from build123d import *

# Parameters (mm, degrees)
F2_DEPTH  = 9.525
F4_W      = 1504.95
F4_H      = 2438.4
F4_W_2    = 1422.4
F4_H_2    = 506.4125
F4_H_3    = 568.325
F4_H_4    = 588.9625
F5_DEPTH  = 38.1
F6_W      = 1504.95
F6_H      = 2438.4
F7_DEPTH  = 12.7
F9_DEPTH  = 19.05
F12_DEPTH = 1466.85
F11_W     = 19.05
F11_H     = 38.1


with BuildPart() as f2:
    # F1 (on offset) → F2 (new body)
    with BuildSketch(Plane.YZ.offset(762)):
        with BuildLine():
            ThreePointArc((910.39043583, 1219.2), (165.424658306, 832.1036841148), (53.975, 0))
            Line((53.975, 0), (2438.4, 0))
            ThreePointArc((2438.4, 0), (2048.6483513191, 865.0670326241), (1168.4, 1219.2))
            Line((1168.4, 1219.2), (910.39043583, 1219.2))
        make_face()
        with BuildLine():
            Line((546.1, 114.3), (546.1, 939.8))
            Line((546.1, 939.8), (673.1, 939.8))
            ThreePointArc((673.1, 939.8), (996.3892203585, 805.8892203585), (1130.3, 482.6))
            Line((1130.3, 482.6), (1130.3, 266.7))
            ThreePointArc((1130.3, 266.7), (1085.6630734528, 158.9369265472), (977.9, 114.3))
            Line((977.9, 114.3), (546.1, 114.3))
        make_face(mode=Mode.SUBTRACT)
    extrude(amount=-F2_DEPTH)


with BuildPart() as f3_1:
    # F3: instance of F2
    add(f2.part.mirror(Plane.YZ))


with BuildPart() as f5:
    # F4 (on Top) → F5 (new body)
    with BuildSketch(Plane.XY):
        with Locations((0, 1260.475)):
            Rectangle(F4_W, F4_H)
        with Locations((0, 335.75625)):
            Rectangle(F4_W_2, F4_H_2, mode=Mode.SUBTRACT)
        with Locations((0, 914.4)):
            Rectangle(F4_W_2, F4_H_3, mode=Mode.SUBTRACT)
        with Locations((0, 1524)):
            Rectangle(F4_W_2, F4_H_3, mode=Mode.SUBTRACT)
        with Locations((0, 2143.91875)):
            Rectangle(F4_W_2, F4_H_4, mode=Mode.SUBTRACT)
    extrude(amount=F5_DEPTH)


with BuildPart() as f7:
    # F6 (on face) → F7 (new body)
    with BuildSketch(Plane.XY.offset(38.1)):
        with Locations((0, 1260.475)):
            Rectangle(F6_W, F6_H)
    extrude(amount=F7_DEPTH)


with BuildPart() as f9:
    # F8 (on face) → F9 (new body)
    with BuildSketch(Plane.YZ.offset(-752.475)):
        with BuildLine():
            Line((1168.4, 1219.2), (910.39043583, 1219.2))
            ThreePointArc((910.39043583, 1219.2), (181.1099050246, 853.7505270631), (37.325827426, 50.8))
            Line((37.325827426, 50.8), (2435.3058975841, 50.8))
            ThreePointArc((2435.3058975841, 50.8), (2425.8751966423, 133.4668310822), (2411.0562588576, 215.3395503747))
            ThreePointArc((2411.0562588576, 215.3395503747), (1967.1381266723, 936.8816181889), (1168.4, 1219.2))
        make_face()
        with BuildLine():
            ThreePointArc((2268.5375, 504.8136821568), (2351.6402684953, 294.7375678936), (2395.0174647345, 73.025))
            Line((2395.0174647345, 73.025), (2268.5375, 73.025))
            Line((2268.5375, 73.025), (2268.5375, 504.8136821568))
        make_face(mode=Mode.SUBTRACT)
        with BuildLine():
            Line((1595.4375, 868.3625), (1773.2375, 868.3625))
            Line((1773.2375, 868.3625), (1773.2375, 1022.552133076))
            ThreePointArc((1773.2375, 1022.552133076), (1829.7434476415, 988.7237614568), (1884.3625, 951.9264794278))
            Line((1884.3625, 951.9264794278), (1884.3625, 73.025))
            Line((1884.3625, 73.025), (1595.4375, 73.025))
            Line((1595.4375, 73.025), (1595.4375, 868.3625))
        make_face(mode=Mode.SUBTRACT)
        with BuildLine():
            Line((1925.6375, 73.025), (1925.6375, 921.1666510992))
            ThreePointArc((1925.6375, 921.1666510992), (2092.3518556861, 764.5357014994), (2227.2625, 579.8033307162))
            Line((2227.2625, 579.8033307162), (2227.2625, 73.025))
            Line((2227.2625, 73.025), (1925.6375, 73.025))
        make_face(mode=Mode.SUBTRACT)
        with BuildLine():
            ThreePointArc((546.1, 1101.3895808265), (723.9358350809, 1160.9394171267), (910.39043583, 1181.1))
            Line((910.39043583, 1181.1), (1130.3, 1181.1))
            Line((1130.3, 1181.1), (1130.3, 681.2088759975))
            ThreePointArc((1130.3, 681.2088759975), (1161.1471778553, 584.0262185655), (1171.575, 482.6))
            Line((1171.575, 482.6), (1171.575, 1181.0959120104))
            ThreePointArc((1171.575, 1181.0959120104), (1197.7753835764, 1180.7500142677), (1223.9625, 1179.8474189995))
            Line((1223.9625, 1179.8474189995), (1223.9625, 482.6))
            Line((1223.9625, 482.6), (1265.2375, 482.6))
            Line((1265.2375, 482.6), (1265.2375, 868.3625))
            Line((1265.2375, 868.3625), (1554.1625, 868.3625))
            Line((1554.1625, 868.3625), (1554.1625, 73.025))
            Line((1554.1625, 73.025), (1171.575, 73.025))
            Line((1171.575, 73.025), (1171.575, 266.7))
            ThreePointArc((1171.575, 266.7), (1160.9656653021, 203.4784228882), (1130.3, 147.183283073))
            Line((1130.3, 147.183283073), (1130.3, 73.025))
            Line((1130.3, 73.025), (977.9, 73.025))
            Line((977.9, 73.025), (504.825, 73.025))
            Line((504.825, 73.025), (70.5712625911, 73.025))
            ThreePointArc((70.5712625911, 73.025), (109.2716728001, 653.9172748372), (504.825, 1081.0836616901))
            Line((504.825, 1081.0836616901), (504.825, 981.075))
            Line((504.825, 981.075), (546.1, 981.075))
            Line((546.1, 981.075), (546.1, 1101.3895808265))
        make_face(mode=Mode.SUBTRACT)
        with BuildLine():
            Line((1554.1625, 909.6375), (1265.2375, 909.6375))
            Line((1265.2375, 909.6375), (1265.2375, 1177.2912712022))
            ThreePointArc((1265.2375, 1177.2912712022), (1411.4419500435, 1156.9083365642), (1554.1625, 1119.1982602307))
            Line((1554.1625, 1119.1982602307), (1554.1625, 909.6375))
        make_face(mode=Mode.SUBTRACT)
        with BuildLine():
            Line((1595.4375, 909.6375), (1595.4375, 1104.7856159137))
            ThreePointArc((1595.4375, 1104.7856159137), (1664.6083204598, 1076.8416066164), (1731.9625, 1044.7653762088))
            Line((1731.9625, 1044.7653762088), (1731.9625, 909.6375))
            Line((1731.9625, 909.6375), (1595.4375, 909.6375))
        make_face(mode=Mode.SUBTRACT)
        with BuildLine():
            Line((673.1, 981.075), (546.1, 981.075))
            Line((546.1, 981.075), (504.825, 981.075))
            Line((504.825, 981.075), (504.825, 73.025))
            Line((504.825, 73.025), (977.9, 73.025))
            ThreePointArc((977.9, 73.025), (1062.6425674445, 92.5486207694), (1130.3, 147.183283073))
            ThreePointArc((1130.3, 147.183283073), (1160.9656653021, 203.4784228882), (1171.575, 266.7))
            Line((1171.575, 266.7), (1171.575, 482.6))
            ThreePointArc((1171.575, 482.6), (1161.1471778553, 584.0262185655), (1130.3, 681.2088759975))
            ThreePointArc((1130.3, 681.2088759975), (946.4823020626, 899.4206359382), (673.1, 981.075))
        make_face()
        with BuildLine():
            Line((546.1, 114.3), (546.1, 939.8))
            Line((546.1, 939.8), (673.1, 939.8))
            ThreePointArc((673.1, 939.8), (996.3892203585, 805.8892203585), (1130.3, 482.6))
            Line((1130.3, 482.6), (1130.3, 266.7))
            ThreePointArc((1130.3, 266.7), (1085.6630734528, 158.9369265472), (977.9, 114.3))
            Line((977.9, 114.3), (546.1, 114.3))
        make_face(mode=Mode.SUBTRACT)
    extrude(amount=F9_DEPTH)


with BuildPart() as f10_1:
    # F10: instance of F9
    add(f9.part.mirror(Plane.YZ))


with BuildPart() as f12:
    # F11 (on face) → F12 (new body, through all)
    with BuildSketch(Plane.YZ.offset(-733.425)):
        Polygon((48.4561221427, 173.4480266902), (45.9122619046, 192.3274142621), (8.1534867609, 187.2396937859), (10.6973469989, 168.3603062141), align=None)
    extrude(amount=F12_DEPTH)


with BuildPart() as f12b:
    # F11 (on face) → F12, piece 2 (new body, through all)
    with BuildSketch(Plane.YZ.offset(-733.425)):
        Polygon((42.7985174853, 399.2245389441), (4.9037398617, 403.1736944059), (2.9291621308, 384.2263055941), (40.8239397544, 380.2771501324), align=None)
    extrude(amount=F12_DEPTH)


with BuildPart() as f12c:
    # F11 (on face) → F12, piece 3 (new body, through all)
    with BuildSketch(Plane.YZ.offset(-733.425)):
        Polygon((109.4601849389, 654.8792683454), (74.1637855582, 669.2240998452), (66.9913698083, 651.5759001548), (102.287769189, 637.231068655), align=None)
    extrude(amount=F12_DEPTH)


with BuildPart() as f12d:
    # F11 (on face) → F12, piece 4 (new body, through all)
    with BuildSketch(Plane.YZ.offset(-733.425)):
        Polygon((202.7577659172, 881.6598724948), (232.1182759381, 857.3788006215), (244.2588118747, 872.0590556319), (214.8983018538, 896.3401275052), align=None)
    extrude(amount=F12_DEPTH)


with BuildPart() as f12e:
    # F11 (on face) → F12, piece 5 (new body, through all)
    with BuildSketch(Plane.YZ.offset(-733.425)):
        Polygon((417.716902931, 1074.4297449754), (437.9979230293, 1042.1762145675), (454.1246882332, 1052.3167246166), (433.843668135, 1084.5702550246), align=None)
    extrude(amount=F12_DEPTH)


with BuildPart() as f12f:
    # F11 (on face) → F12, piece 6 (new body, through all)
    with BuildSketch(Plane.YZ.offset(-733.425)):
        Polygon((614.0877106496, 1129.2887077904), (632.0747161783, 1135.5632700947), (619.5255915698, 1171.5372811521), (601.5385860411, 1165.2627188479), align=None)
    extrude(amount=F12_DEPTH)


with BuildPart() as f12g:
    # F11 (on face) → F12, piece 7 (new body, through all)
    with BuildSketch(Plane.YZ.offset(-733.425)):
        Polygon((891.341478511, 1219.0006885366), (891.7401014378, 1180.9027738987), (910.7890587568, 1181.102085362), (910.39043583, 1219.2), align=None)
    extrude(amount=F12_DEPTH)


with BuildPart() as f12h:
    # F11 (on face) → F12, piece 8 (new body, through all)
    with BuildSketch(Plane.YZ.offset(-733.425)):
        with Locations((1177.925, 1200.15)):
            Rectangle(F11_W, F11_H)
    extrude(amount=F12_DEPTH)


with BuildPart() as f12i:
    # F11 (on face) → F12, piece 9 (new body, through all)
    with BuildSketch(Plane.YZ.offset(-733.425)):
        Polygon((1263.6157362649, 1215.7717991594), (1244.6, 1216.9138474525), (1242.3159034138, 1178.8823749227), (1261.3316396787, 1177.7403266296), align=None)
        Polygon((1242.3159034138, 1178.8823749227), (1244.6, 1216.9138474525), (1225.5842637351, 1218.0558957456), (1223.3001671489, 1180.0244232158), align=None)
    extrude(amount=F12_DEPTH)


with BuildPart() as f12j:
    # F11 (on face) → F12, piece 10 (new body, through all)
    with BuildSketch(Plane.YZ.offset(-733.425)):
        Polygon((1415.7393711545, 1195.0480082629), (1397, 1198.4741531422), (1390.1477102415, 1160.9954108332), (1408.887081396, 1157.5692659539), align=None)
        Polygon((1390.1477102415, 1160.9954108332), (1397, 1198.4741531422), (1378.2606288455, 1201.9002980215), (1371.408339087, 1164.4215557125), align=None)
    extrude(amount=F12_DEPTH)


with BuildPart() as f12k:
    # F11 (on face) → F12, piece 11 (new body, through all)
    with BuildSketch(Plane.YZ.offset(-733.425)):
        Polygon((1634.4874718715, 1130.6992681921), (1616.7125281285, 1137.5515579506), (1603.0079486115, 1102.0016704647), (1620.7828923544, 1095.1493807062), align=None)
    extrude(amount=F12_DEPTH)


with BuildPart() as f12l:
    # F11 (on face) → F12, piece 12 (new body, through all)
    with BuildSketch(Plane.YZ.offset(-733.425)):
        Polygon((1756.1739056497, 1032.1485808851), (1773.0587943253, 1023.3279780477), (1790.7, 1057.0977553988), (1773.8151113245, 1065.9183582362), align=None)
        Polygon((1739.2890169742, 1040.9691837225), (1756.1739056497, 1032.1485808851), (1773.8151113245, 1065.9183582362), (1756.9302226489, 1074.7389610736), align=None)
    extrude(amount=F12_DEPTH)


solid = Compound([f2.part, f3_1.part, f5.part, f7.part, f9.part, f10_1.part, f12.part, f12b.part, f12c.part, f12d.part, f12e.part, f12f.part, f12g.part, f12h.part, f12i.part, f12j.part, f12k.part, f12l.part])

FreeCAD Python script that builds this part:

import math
import FreeCAD as App
import Part
import Sketcher
Q = App.Units.Quantity


def add_polygon(sketch, points):
    """Adds a closed chain of lines whose ends are joined by coincident constraints."""
    first, n = sketch.GeometryCount, len(points)
    for a, b in zip(points, points[1:] + points[:1]):
        sketch.addGeometry(Part.LineSegment(App.Vector(*a, 0), App.Vector(*b, 0)), False)
    for i in range(n):
        sketch.addConstraint(Sketcher.Constraint("Coincident", first + i, 2, first + (i + 1) % n, 1))

doc = App.newDocument("Part")
body = doc.addObject("PartDesign::Body", "Body")

# Sketch on YZ plane
sketch1 = body.newObject("Sketcher::SketchObject", "Sketch")
sketch1.AttachmentSupport = (doc.getObject("YZ_Plane"), [""])
sketch1.MapMode = "FlatFace"
sketch1.AttachmentOffset = App.Placement(App.Vector(0, 0, 30 * 25.4), App.Rotation())
sketch1.addGeometry(Part.ArcOfCircle(Part.Circle(App.Vector(910, 309, 0), App.Vector(0, 0, 1), 910), math.radians(90), math.radians(200)), False)
sketch1.addGeometry(Part.LineSegment(App.Vector(54, 0, 0), App.Vector(2438, 0, 0)), False)
sketch1.addGeometry(Part.ArcOfCircle(Part.Circle(App.Vector(1168, -52, 0), App.Vector(0, 0, 1), 1271), math.radians(2), math.radians(90)), False)
sketch1.addGeometry(Part.LineSegment(App.Vector(1168, 1219, 0), App.Vector(910, 1219, 0)), False)
sketch1.addGeometry(Part.LineSegment(App.Vector(978, 114, 0), App.Vector(546, 114, 0)), False)
sketch1.addGeometry(Part.LineSegment(App.Vector(546, 114, 0), App.Vector(546, 940, 0)), False)
sketch1.addGeometry(Part.LineSegment(App.Vector(546, 940, 0), App.Vector(673, 940, 0)), False)
sketch1.addGeometry(Part.ArcOfCircle(Part.Circle(App.Vector(673, 483, 0), App.Vector(0, 0, 1), 457), math.radians(0), math.radians(90)), False)
sketch1.addGeometry(Part.LineSegment(App.Vector(1130, 483, 0), App.Vector(1130, 267, 0)), False)
sketch1.addGeometry(Part.ArcOfCircle(Part.Circle(App.Vector(978, 267, 0), App.Vector(0, 0, 1), 152), math.radians(-90), math.radians(0)), False)
sketch1.addConstraint(Sketcher.Constraint("Coincident", 0, 2, 1, 1))
sketch1.addConstraint(Sketcher.Constraint("Coincident", 1, 2, 2, 1))
sketch1.addConstraint(Sketcher.Constraint("Tangent", 2, 2, 3, 1))
sketch1.addConstraint(Sketcher.Constraint("Coincident", 3, 2, 0, 1))
sketch1.addConstraint(Sketcher.Constraint("Coincident", 4, 2, 5, 1))
sketch1.addConstraint(Sketcher.Constraint("Coincident", 5, 2, 6, 1))
sketch1.addConstraint(Sketcher.Constraint("Tangent", 6, 2, 7, 2))
sketch1.addConstraint(Sketcher.Constraint("Tangent", 7, 1, 8, 1))
sketch1.addConstraint(Sketcher.Constraint("Tangent", 8, 2, 9, 2))
sketch1.addConstraint(Sketcher.Constraint("Tangent", 9, 1, 4, 1))
sketch1.addConstraint(Sketcher.Constraint("Horizontal", 1))
sketch1.addConstraint(Sketcher.Constraint("Horizontal", 3))
sketch1.addConstraint(Sketcher.Constraint("Horizontal", 4))
sketch1.addConstraint(Sketcher.Constraint("Vertical", 5))
sketch1.addConstraint(Sketcher.Constraint("Horizontal", 6))
sketch1.addConstraint(Sketcher.Constraint("Vertical", 8))
sketch1.addConstraint(Sketcher.Constraint("PointOnObject", 1, 2, -1))
sketch1.addConstraint(Sketcher.Constraint("Vertical", 0, 3, 3, 2))
sketch1.addConstraint(Sketcher.Constraint("Radius", 7, Q("18 in")))
sketch1.addConstraint(Sketcher.Constraint("Radius", 9, Q("6 in")))
sketch1.addConstraint(Sketcher.Constraint("DistanceX", 4, 2, 4, 1, Q("17 in")))
sketch1.addConstraint(Sketcher.Constraint("DistanceY", 5, 1, 5, 2, Q("32.5 in")))
sketch1.addConstraint(Sketcher.Constraint("DistanceX", -1, 1, 2, 3, Q("46 in")))
sketch1.addConstraint(Sketcher.Constraint("DistanceY", -1, 1, 7, 3, Q("19 in")))
sketch1.addConstraint(Sketcher.Constraint("DistanceX", -1, 1, 1, 2, Q("96 in")))
sketch1.addConstraint(Sketcher.Constraint("DistanceY", -1, 1, 2, 2, Q("48 in")))
sketch1.addConstraint(Sketcher.Constraint("DistanceX", -1, 1, 7, 3, Q("26.5 in")))
sketch1.addConstraint(Sketcher.Constraint("DistanceX", 1, 1, 1, 2, Q("93.875 in")))
sketch1.addConstraint(Sketcher.Constraint("Radius", 0, Q("910.390436 mm")))
pad1 = body.newObject("PartDesign::Pad", "Pad")
pad1.Profile = sketch1
pad1.Length = Q("0.375 in")
pad1.Reversed = True
body2 = doc.addObject("PartDesign::Body", "Body001")
doc.recompute()

mirroring = doc.addObject("Part::Mirroring", "Mirroring")
mirroring.Source = body
mirroring.Base = App.Vector(0, 0, 0)
mirroring.Normal = App.Vector(1, 0, 0)
body2.BaseFeature = mirroring
doc.recompute()
body3 = doc.addObject("PartDesign::Body", "Body002")

# Sketch on XY plane
sketch2 = body3.newObject("Sketcher::SketchObject", "Sketch001")
sketch2.AttachmentSupport = (doc.getObject("XY_Plane002"), [""])
sketch2.MapMode = "FlatFace"
add_polygon(sketch2, [(-752, 2480), (-752, 41), (752, 41), (752, 2480)])  # lines 0-3
add_polygon(sketch2, [(711, 83), (-711, 83), (-711, 589), (711, 589)])  # lines 4-7
add_polygon(sketch2, [(711, 630), (-711, 630), (-711, 1199), (711, 1199)])  # lines 8-11
add_polygon(sketch2, [(711, 1240), (-711, 1240), (-711, 1808), (711, 1808)])  # lines 12-15
add_polygon(sketch2, [(711, 1849), (-711, 1849), (-711, 2438), (711, 2438)])  # lines 16-19
sketch2.addConstraint(Sketcher.Constraint("Vertical", 0))
sketch2.addConstraint(Sketcher.Constraint("Horizontal", 1))
sketch2.addConstraint(Sketcher.Constraint("Vertical", 2))
sketch2.addConstraint(Sketcher.Constraint("Horizontal", 3))
sketch2.addConstraint(Sketcher.Constraint("Horizontal", 4))
sketch2.addConstraint(Sketcher.Constraint("Vertical", 5))
sketch2.addConstraint(Sketcher.Constraint("Horizontal", 6))
sketch2.addConstraint(Sketcher.Constraint("Vertical", 7))
sketch2.addConstraint(Sketcher.Constraint("Horizontal", 8))
sketch2.addConstraint(Sketcher.Constraint("Vertical", 9))
sketch2.addConstraint(Sketcher.Constraint("Horizontal", 10))
sketch2.addConstraint(Sketcher.Constraint("Vertical", 11))
sketch2.addConstraint(Sketcher.Constraint("Horizontal", 12))
sketch2.addConstraint(Sketcher.Constraint("Vertical", 13))
sketch2.addConstraint(Sketcher.Constraint("Horizontal", 14))
sketch2.addConstraint(Sketcher.Constraint("Vertical", 15))
sketch2.addConstraint(Sketcher.Constraint("Horizontal", 16))
sketch2.addConstraint(Sketcher.Constraint("Vertical", 17))
sketch2.addConstraint(Sketcher.Constraint("Horizontal", 18))
sketch2.addConstraint(Sketcher.Constraint("Vertical", 19))
sketch2.addConstraint(Sketcher.Constraint("Vertical", 5, 2, 8, 2))
sketch2.addConstraint(Sketcher.Constraint("Vertical", 7, 2, 10, 2))
sketch2.addConstraint(Sketcher.Constraint("Vertical", 9, 2, 12, 2))
sketch2.addConstraint(Sketcher.Constraint("Vertical", 11, 2, 14, 2))
sketch2.addConstraint(Sketcher.Constraint("Vertical", 13, 2, 16, 2))
sketch2.addConstraint(Sketcher.Constraint("Vertical", 15, 2, 18, 2))
sketch2.addConstraint(Sketcher.Constraint("Equal", 11, 13))
sketch2.addConstraint(Sketcher.Constraint("DistanceX", 4, 2, 4, 1, Q("56 in")))
sketch2.addConstraint(Sketcher.Constraint("DistanceY", 0, 2, 0, 1, Q("96 in")))
sketch2.addConstraint(Sketcher.Constraint("DistanceX", 4, 2, -1, 1, Q("28 in")))
sketch2.addConstraint(Sketcher.Constraint("DistanceY", -1, 1, 17, 2, Q("96 in")))
sketch2.addConstraint(Sketcher.Constraint("DistanceY", 5, 2, 9, 2, Q("24 in")))
sketch2.addConstraint(Sketcher.Constraint("DistanceY", 8, 2, 12, 2, Q("24 in")))
sketch2.addConstraint(Sketcher.Constraint("DistanceY", 12, 2, 16, 2, Q("24 in")))
sketch2.addConstraint(Sketcher.Constraint("DistanceX", 1, 1, 1, 2, Q("59.25 in")))
sketch2.addConstraint(Sketcher.Constraint("DistanceY", 5, 1, 5, 2, Q("19.9375 in")))
sketch2.addConstraint(Sketcher.Constraint("DistanceY", 9, 1, 9, 2, Q("22.375 in")))
sketch2.addConstraint(Sketcher.Constraint("DistanceY", 17, 1, 17, 2, Q("23.1875 in")))
sketch2.addConstraint(Sketcher.Constraint("DistanceX", 0, 2, -1, 1, Q("29.625 in")))
sketch2.addConstraint(Sketcher.Constraint("DistanceY", -1, 1, 0, 2, Q("1.625 in")))
pad2 = body3.newObject("PartDesign::Pad", "Pad001")
pad2.Profile = sketch2
pad2.Length = Q("1.5 in")
body4 = doc.addObject("PartDesign::Body", "Body003")

# Sketch on XY plane
sketch3 = body4.newObject("Sketcher::SketchObject", "Sketch002")
sketch3.AttachmentSupport = (doc.getObject("XY_Plane003"), [""])
sketch3.MapMode = "FlatFace"
sketch3.AttachmentOffset = App.Placement(App.Vector(0, 0, 1.5 * 25.4), App.Rotation())
add_polygon(sketch3, [(-752, 2480), (-752, 41), (752, 41), (752, 2480)])  # lines 0-3
sketch3.addConstraint(Sketcher.Constraint("Vertical", 0))
sketch3.addConstraint(Sketcher.Constraint("Horizontal", 1))
sketch3.addConstraint(Sketcher.Constraint("Vertical", 2))
sketch3.addConstraint(Sketcher.Constraint("Horizontal", 3))
sketch3.addConstraint(Sketcher.Constraint("DistanceY", 0, 2, 0, 1, Q("96 in")))
sketch3.addConstraint(Sketcher.Constraint("DistanceX", 1, 1, 1, 2, Q("59.25 in")))
sketch3.addConstraint(Sketcher.Constraint("DistanceX", 0, 2, -1, 1, Q("29.625 in")))
sketch3.addConstraint(Sketcher.Constraint("DistanceY", -1, 1, 0, 2, Q("1.625 in")))
pad3 = body4.newObject("PartDesign::Pad", "Pad002")
pad3.Profile = sketch3
pad3.Length = Q("0.5 in")
body5 = doc.addObject("PartDesign::Body", "Body004")

# Sketch on YZ plane
sketch4 = body5.newObject("Sketcher::SketchObject", "Sketch003")
sketch4.AttachmentSupport = (doc.getObject("YZ_Plane004"), [""])
sketch4.MapMode = "FlatFace"
sketch4.AttachmentOffset = App.Placement(App.Vector(0, 0, -29.625 * 25.4), App.Rotation())
sketch4.addGeometry(Part.LineSegment(App.Vector(1168, 1219, 0), App.Vector(910, 1219, 0)), False)
sketch4.addGeometry(Part.ArcOfCircle(Part.Circle(App.Vector(910, 309, 0), App.Vector(0, 0, 1), 910), math.radians(90), math.radians(196)), False)
sketch4.addGeometry(Part.LineSegment(App.Vector(37, 51, 0), App.Vector(2435, 51, 0)), False)
sketch4.addGeometry(Part.ArcOfCircle(Part.Circle(App.Vector(1168, -52, 0), App.Vector(0, 0, 1), 1271), math.radians(4.63), math.radians(12.14)), False)
sketch4.addGeometry(Part.ArcOfCircle(Part.Circle(App.Vector(1168, -52, 0), App.Vector(0, 0, 1), 1271), math.radians(12), math.radians(90)), False)
sketch4.addGeometry(Part.LineSegment(App.Vector(1130, 73, 0), App.Vector(978, 73, 0)), False)
sketch4.addGeometry(Part.ArcOfCircle(Part.Circle(App.Vector(978, 267, 0), App.Vector(0, 0, 1), 194), math.radians(-90), math.radians(-38)), False)
sketch4.addGeometry(Part.LineSegment(App.Vector(1130, 147, 0), App.Vector(1130, 73, 0)), False)
sketch4.addGeometry(Part.LineSegment(App.Vector(505, 1081, 0), App.Vector(505, 73, 0)), False)
sketch4.addGeometry(Part.LineSegment(App.Vector(505, 73, 0), App.Vector(71, 73, 0)), False)
sketch4.addGeometry(Part.ArcOfCircle(Part.Circle(App.Vector(910, 309, 0), App.Vector(0, 0, 1), 872), math.radians(118), math.radians(196)), False)
sketch4.addGeometry(Part.LineSegment(App.Vector(978, 114, 0), App.Vector(546, 114, 0)), False)
sketch4.addGeometry(Part.LineSegment(App.Vector(546, 114, 0), App.Vector(546, 940, 0)), False)
sketch4.addGeometry(Part.LineSegment(App.Vector(546, 940, 0), App.Vector(673, 940, 0)), False)
sketch4.addGeometry(Part.ArcOfCircle(Part.Circle(App.Vector(673, 483, 0), App.Vector(0, 0, 1), 457), math.radians(0), math.radians(90)), False)
sketch4.addGeometry(Part.LineSegment(App.Vector(1130, 483, 0), App.Vector(1130, 267, 0)), False)
sketch4.addGeometry(Part.ArcOfCircle(Part.Circle(App.Vector(978, 267, 0), App.Vector(0, 0, 1), 152), math.radians(-90), math.radians(0)), False)
sketch4.addGeometry(Part.LineSegment(App.Vector(2269, 73, 0), App.Vector(2269, 505, 0)), False)
sketch4.addGeometry(Part.ArcOfCircle(Part.Circle(App.Vector(1168, -52, 0), App.Vector(0, 0, 1), 1233), math.radians(6), math.radians(27)), False)
sketch4.addGeometry(Part.LineSegment(App.Vector(2395, 73, 0), App.Vector(2269, 73, 0)), False)
sketch4.addGeometry(Part.ArcOfCircle(Part.Circle(App.Vector(1168, -52, 0), App.Vector(0, 0, 1), 1233), math.radians(87.42), math.radians(89.85)), False)
sketch4.addGeometry(Part.LineSegment(App.Vector(1224, 1180, 0), App.Vector(1224, 483, 0)), False)
sketch4.addGeometry(Part.LineSegment(App.Vector(1224, 483, 0), App.Vector(1265, 483, 0)), False)
sketch4.addGeometry(Part.LineSegment(App.Vector(1265, 483, 0), App.Vector(1265, 868, 0)), False)
sketch4.addGeometry(Part.LineSegment(App.Vector(1265, 868, 0), App.Vector(1554, 868, 0)), False)
sketch4.addGeometry(Part.LineSegment(App.Vector(1554, 868, 0), App.Vector(1554, 73, 0)), False)
sketch4.addGeometry(Part.LineSegment(App.Vector(1554, 73, 0), App.Vector(1172, 73, 0)), False)
sketch4.addGeometry(Part.LineSegment(App.Vector(1172, 73, 0), App.Vector(1172, 1181, 0)), False)
sketch4.addGeometry(Part.LineSegment(App.Vector(1595, 73, 0), App.Vector(1595, 868, 0)), False)
sketch4.addGeometry(Part.LineSegment(App.Vector(1595, 868, 0), App.Vector(1773, 868, 0)), False)
sketch4.addGeometry(Part.LineSegment(App.Vector(1773, 868, 0), App.Vector(1773, 1023, 0)), False)
sketch4.addGeometry(Part.ArcOfCircle(Part.Circle(App.Vector(1168, -52, 0), App.Vector(0, 0, 1), 1233), math.radians(54.5), math.radians(60.62)), False)
sketch4.addGeometry(Part.LineSegment(App.Vector(1884, 952, 0), App.Vector(1884, 73, 0)), False)
sketch4.addGeometry(Part.LineSegment(App.Vector(1884, 73, 0), App.Vector(1595, 73, 0)), False)
sketch4.addGeometry(Part.LineSegment(App.Vector(2227, 73, 0), App.Vector(1926, 73, 0)), False)
sketch4.addGeometry(Part.LineSegment(App.Vector(1926, 73, 0), App.Vector(1926, 921, 0)), False)
sketch4.addGeometry(Part.ArcOfCircle(Part.Circle(App.Vector(1168, -52, 0), App.Vector(0, 0, 1), 1233), math.radians(31), math.radians(52)), False)
sketch4.addGeometry(Part.LineSegment(App.Vector(2227, 580, 0), App.Vector(2227, 73, 0)), False)
sketch4.addGeometry(Part.LineSegment(App.Vector(546, 981, 0), App.Vector(546, 1101, 0)), False)
sketch4.addGeometry(Part.ArcOfCircle(Part.Circle(App.Vector(910, 309, 0), App.Vector(0, 0, 1), 872), math.radians(90), math.radians(115)), False)
sketch4.addGeometry(Part.LineSegment(App.Vector(910, 1181, 0), App.Vector(1130, 1181, 0)), False)
sketch4.addGeometry(Part.LineSegment(App.Vector(1130, 1181, 0), App.Vector(1130, 681, 0)), False)
sketch4.addGeometry(Part.ArcOfCircle(Part.Circle(App.Vector(673, 483, 0), App.Vector(0, 0, 1), 498), math.radians(23), math.radians(90)), False)
sketch4.addGeometry(Part.LineSegment(App.Vector(673, 981, 0), App.Vector(546, 981, 0)), False)
sketch4.addGeometry(Part.LineSegment(App.Vector(1732, 910, 0), App.Vector(1595, 910, 0)), False)
sketch4.addGeometry(Part.LineSegment(App.Vector(1595, 910, 0), App.Vector(1595, 1105, 0)), False)
sketch4.addGeometry(Part.ArcOfCircle(Part.Circle(App.Vector(1168, -52, 0), App.Vector(0, 0, 1), 1233), math.radians(62.8), math.radians(69.74)), False)
sketch4.addGeometry(Part.LineSegment(App.Vector(1732, 1045, 0), App.Vector(1732, 910, 0)), False)
sketch4.addGeometry(Part.LineSegment(App.Vector(1554, 1119, 0), App.Vector(1554, 910, 0)), False)
sketch4.addGeometry(Part.LineSegment(App.Vector(1554, 910, 0), App.Vector(1265, 910, 0)), False)
sketch4.addGeometry(Part.LineSegment(App.Vector(1265, 910, 0), App.Vector(1265, 1177, 0)), False)
sketch4.addGeometry(Part.ArcOfCircle(Part.Circle(App.Vector(1168, -52, 0), App.Vector(0, 0, 1), 1233), math.radians(71.77), math.radians(85.5)), False)
sketch4.addConstraint(Sketcher.Constraint("Tangent", 0, 2, 1, 1))
sketch4.addConstraint(Sketcher.Constraint("Coincident", 1, 2, 2, 1))
sketch4.addConstraint(Sketcher.Constraint("Coincident", 2, 2, 3, 1))
sketch4.addConstraint(Sketcher.Constraint("Coincident", 3, 2, 4, 1))
sketch4.addConstraint(Sketcher.Constraint("Coincident", 4, 2, 0, 1))
sketch4.addConstraint(Sketcher.Constraint("Tangent", 5, 2, 6, 1))
sketch4.addConstraint(Sketcher.Constraint("Coincident", 6, 2, 7, 1))
sketch4.addConstraint(Sketcher.Constraint("Coincident", 7, 2, 5, 1))
sketch4.addConstraint(Sketcher.Constraint("Coincident", 8, 2, 9, 1))
sketch4.addConstraint(Sketcher.Constraint("Coincident", 9, 2, 10, 2))
sketch4.addConstraint(Sketcher.Constraint("Coincident", 10, 1, 8, 1))
sketch4.addConstraint(Sketcher.Constraint("Coincident", 11, 2, 12, 1))
sketch4.addConstraint(Sketcher.Constraint("Coincident", 12, 2, 13, 1))
sketch4.addConstraint(Sketcher.Constraint("Tangent", 13, 2, 14, 2))
sketch4.addConstraint(Sketcher.Constraint("Tangent", 14, 1, 15, 1))
sketch4.addConstraint(Sketcher.Constraint("Tangent", 15, 2, 16, 2))
sketch4.addConstraint(Sketcher.Constraint("Tangent", 16, 1, 11, 1))
sketch4.addConstraint(Sketcher.Constraint("Coincident", 17, 2, 18, 2))
sketch4.addConstraint(Sketcher.Constraint("Coincident", 18, 1, 19, 1))
sketch4.addConstraint(Sketcher.Constraint("Coincident", 19, 2, 17, 1))
sketch4.addConstraint(Sketcher.Constraint("Coincident", 20, 1, 21, 1))
sketch4.addConstraint(Sketcher.Constraint("Coincident", 21, 2, 22, 1))
sketch4.addConstraint(Sketcher.Constraint("Coincident", 22, 2, 23, 1))
sketch4.addConstraint(Sketcher.Constraint("Coincident", 23, 2, 24, 1))
sketch4.addConstraint(Sketcher.Constraint("Coincident", 24, 2, 25, 1))
sketch4.addConstraint(Sketcher.Constraint("Coincident", 25, 2, 26, 1))
sketch4.addConstraint(Sketcher.Constraint("Coincident", 26, 2, 27, 1))
sketch4.addConstraint(Sketcher.Constraint("Coincident", 27, 2, 20, 2))
sketch4.addConstraint(Sketcher.Constraint("Coincident", 28, 2, 29, 1))
sketch4.addConstraint(Sketcher.Constraint("Coincident", 29, 2, 30, 1))
sketch4.addConstraint(Sketcher.Constraint("Coincident", 30, 2, 31, 2))
sketch4.addConstraint(Sketcher.Constraint("Coincident", 31, 1, 32, 1))
sketch4.addConstraint(Sketcher.Constraint("Coincident", 32, 2, 33, 1))
sketch4.addConstraint(Sketcher.Constraint("Coincident", 33, 2, 28, 1))
sketch4.addConstraint(Sketcher.Constraint("Coincident", 34, 2, 35, 1))
sketch4.addConstraint(Sketcher.Constraint("Coincident", 35, 2, 36, 2))
sketch4.addConstraint(Sketcher.Constraint("Coincident", 36, 1, 37, 1))
sketch4.addConstraint(Sketcher.Constraint("Coincident", 37, 2, 34, 1))
sketch4.addConstraint(Sketcher.Constraint("Coincident", 38, 2, 39, 2))
sketch4.addConstraint(Sketcher.Constraint("Tangent", 39, 1, 40, 1))
sketch4.addConstraint(Sketcher.Constraint("Coincident", 40, 2, 41, 1))
sketch4.addConstraint(Sketcher.Constraint("Coincident", 41, 2, 42, 1))
sketch4.addConstraint(Sketcher.Constraint("Tangent", 42, 2, 43, 1))
sketch4.addConstraint(Sketcher.Constraint("Coincident", 43, 2, 38, 1))
sketch4.addConstraint(Sketcher.Constraint("Coincident", 44, 2, 45, 1))
sketch4.addConstraint(Sketcher.Constraint("Coincident", 45, 2, 46, 2))
sketch4.addConstraint(Sketcher.Constraint("Coincident", 46, 1, 47, 1))
sketch4.addConstraint(Sketcher.Constraint("Coincident", 47, 2, 44, 1))
sketch4.addConstraint(Sketcher.Constraint("Coincident", 48, 2, 49, 1))
sketch4.addConstraint(Sketcher.Constraint("Coincident", 49, 2, 50, 1))
sketch4.addConstraint(Sketcher.Constraint("Coincident", 50, 2, 51, 2))
sketch4.addConstraint(Sketcher.Constraint("Coincident", 51, 1, 48, 1))
sketch4.addConstraint(Sketcher.Constraint("Horizontal", 0))
sketch4.addConstraint(Sketcher.Constraint("Horizontal", 2))
sketch4.addConstraint(Sketcher.Constraint("Horizontal", 5))
sketch4.addConstraint(Sketcher.Constraint("Vertical", 7))
sketch4.addConstraint(Sketcher.Constraint("Vertical", 8))
sketch4.addConstraint(Sketcher.Constraint("Horizontal", 9))
sketch4.addConstraint(Sketcher.Constraint("Horizontal", 11))
sketch4.addConstraint(Sketcher.Constraint("Vertical", 12))
sketch4.addConstraint(Sketcher.Constraint("Horizontal", 13))
sketch4.addConstraint(Sketcher.Constraint("Vertical", 15))
sketch4.addConstraint(Sketcher.Constraint("Vertical", 17))
sketch4.addConstraint(Sketcher.Constraint("Horizontal", 19))
sketch4.addConstraint(Sketcher.Constraint("Vertical", 21))
sketch4.addConstraint(Sketcher.Constraint("Horizontal", 22))
sketch4.addConstraint(Sketcher.Constraint("Vertical", 23))
sketch4.addConstraint(Sketcher.Constraint("Horizontal", 24))
sketch4.addConstraint(Sketcher.Constraint("Vertical", 25))
sketch4.addConstraint(Sketcher.Constraint("Horizontal", 26))
sketch4.addConstraint(Sketcher.Constraint("Vertical", 27))
sketch4.addConstraint(Sketcher.Constraint("Vertical", 28))
sketch4.addConstraint(Sketcher.Constraint("Horizontal", 29))
sketch4.addConstraint(Sketcher.Constraint("Vertical", 30))
sketch4.addConstraint(Sketcher.Constraint("Vertical", 32))
sketch4.addConstraint(Sketcher.Constraint("Horizontal", 33))
sketch4.addConstraint(Sketcher.Constraint("Horizontal", 34))
sketch4.addConstraint(Sketcher.Constraint("Vertical", 35))
sketch4.addConstraint(Sketcher.Constraint("Vertical", 37))
sketch4.addConstraint(Sketcher.Constraint("Vertical", 38))
sketch4.addConstraint(Sketcher.Constraint("Horizontal", 40))
sketch4.addConstraint(Sketcher.Constraint("Vertical", 41))
sketch4.addConstraint(Sketcher.Constraint("Horizontal", 43))
sketch4.addConstraint(Sketcher.Constraint("Horizontal", 44))
sketch4.addConstraint(Sketcher.Constraint("Vertical", 45))
sketch4.addConstraint(Sketcher.Constraint("Vertical", 47))
sketch4.addConstraint(Sketcher.Constraint("Vertical", 48))
sketch4.addConstraint(Sketcher.Constraint("Horizontal", 49))
sketch4.addConstraint(Sketcher.Constraint("Vertical", 50))
sketch4.addConstraint(Sketcher.Constraint("Coincident", 4, 3, 3, 3))
sketch4.addConstraint(Sketcher.Constraint("Coincident", 10, 3, 1, 3))
sketch4.addConstraint(Sketcher.Constraint("Coincident", 16, 3, 6, 3))
sketch4.addConstraint(Sketcher.Constraint("Coincident", 18, 3, 3, 3))
sketch4.addConstraint(Sketcher.Constraint("Coincident", 20, 3, 3, 3))
sketch4.addConstraint(Sketcher.Constraint("Coincident", 31, 3, 3, 3))
sketch4.addConstraint(Sketcher.Constraint("Coincident", 36, 3, 3, 3))
sketch4.addConstraint(Sketcher.Constraint("Coincident", 39, 3, 1, 3))
sketch4.addConstraint(Sketcher.Constraint("Coincident", 42, 3, 14, 3))
sketch4.addConstraint(Sketcher.Constraint("Coincident", 46, 3, 3, 3))
sketch4.addConstraint(Sketcher.Constraint("Coincident", 51, 3, 3, 3))
sketch4.addConstraint(Sketcher.Constraint("Equal", 18, 20))
sketch4.addConstraint(Sketcher.Constraint("Equal", 20, 31))
sketch4.addConstraint(Sketcher.Constraint("Equal", 31, 36))
sketch4.addConstraint(Sketcher.Constraint("Equal", 10, 39))
sketch4.addConstraint(Sketcher.Constraint("Equal", 36, 46))
sketch4.addConstraint(Sketcher.Constraint("Equal", 46, 51))
sketch4.addConstraint(Sketcher.Constraint("Horizontal", 7, 2, 8, 2))
sketch4.addConstraint(Sketcher.Constraint("Horizontal", 19, 2, 25, 2))
sketch4.addConstraint(Sketcher.Constraint("Horizontal", 24, 2, 28, 2))
sketch4.addConstraint(Sketcher.Constraint("Horizontal", 26, 2, 32, 2))
sketch4.addConstraint(Sketcher.Constraint("Horizontal", 33, 2, 34, 2))
sketch4.addConstraint(Sketcher.Constraint("Horizontal", 47, 2, 48, 2))
sketch4.addConstraint(Sketcher.Constraint("Vertical", 7, 2, 14, 1))
sketch4.addConstraint(Sketcher.Constraint("Vertical", 12, 2, 38, 2))
sketch4.addConstraint(Sketcher.Constraint("Vertical", 15, 2, 40, 2))
sketch4.addConstraint(Sketcher.Constraint("Vertical", 33, 2, 44, 2))
sketch4.addConstraint(Sketcher.Constraint("Vertical", 25, 2, 48, 2))
sketch4.addConstraint(Sketcher.Constraint("Vertical", 23, 2, 49, 2))
sketch4.addConstraint(Sketcher.Constraint("Equal", 24, 33))
sketch4.addConstraint(Sketcher.Constraint("Radius", 14, Q("18 in")))
sketch4.addConstraint(Sketcher.Constraint("Radius", 16, Q("6 in")))
sketch4.addConstraint(Sketcher.Constraint("DistanceX", 11, 2, 11, 1, Q("17 in")))
sketch4.addConstraint(Sketcher.Constraint("DistanceX", 29, 1, 29, 2, Q("7 in")))
sketch4.addConstraint(Sketcher.Constraint("DistanceY", 12, 1, 12, 2, Q("32.5 in")))
sketch4.addConstraint(Sketcher.Constraint("DistanceX", -1, 1, 3, 3, Q("46 in")))
sketch4.addConstraint(Sketcher.Constraint("DistanceY", -1, 1, 14, 3, Q("19 in")))
sketch4.addConstraint(Sketcher.Constraint("DistanceY", -1, 1, 0, 2, Q("48 in")))
sketch4.addConstraint(Sketcher.Constraint("DistanceY", -1, 1, 2, 2, Q("2 in")))
sketch4.addConstraint(Sketcher.Constraint("DistanceY", -1, 1, 21, 2, Q("19 in")))
sketch4.addConstraint(Sketcher.Constraint("Radius", 6, Q("7.625 in")))
sketch4.addConstraint(Sketcher.Constraint("Radius", 42, Q("19.625 in")))
sketch4.addConstraint(Sketcher.Constraint("DistanceX", -1, 1, 6, 3, Q("38.5 in")))
sketch4.addConstraint(Sketcher.Constraint("DistanceY", -1, 1, 39, 1, Q("46.5 in")))
sketch4.addConstraint(Sketcher.Constraint("DistanceX", 22, 1, 22, 2, Q("1.625 in")))
sketch4.addConstraint(Sketcher.Constraint("DistanceX", 24, 1, 24, 2, Q("11.375 in")))
sketch4.addConstraint(Sketcher.Constraint("DistanceX", 26, 2, 26, 1, Q("15.0625 in")))
sketch4.addConstraint(Sketcher.Constraint("DistanceX", 34, 2, 34, 1, Q("11.875 in")))
sketch4.addConstraint(Sketcher.Constraint("DistanceX", 44, 2, 44, 1, Q("5.375 in")))
sketch4.addConstraint(Sketcher.Constraint("DistanceY", 23, 1, 23, 2, Q("15.1875 in")))
sketch4.addConstraint(Sketcher.Constraint("DistanceY", 25, 2, 25, 1, Q("31.3125 in")))
sketch4.addConstraint(Sketcher.Constraint("DistanceX", -1, 1, 8, 2, Q("19.875 in")))
sketch4.addConstraint(Sketcher.Constraint("DistanceX", -1, 1, 17, 2, Q("89.3125 in")))
sketch4.addConstraint(Sketcher.Constraint("DistanceX", -1, 1, 21, 2, Q("48.1875 in")))
sketch4.addConstraint(Sketcher.Constraint("DistanceX", -1, 1, 28, 2, Q("62.8125 in")))
sketch4.addConstraint(Sketcher.Constraint("DistanceX", -1, 1, 34, 2, Q("75.8125 in")))
sketch4.addConstraint(Sketcher.Constraint("DistanceY", -1, 1, 44, 2, Q("35.8125 in")))
sketch4.addConstraint(Sketcher.Constraint("Radius", 1, Q("910.390436 mm")))
sketch4.addConstraint(Sketcher.Constraint("Radius", 3, Q("1271.058333 mm")))
sketch4.addConstraint(Sketcher.Constraint("Radius", 18, Q("1232.958333 mm")))
sketch4.addConstraint(Sketcher.Constraint("DistanceX", 2, 1, 2, 2, Q("2397.98007 mm")))
sketch4.addConstraint(Sketcher.Constraint("DistanceX", 0, 2, 0, 1, Q("258.009564 mm")))
sketch4.addConstraint(Sketcher.Constraint("DistanceX", -1, 1, 3, 2, Q("2411.056259 mm")))
pad4 = body5.newObject("PartDesign::Pad", "Pad003")
pad4.Profile = sketch4
pad4.Length = Q("0.75 in")
body6 = doc.addObject("PartDesign::Body", "Body005")
doc.recompute()

mirroring2 = doc.addObject("Part::Mirroring", "Mirroring001")
mirroring2.Source = body5
mirroring2.Base = App.Vector(0, 0, 0)
mirroring2.Normal = App.Vector(1, 0, 0)
body6.BaseFeature = mirroring2
doc.recompute()
body7 = doc.addObject("PartDesign::Body", "Body006")

# Sketch on YZ plane
sketch5 = body7.newObject("Sketcher::SketchObject", "Sketch004")
sketch5.AttachmentSupport = (doc.getObject("YZ_Plane006"), [""])
sketch5.MapMode = "FlatFace"
sketch5.AttachmentOffset = App.Placement(App.Vector(0, 0, -28.875 * 25.4), App.Rotation())
add_polygon(sketch5, [(48, 173), (46, 192), (8, 187), (11, 168)])  # lines 0-3
sketch5.addConstraint(Sketcher.Constraint("Perpendicular", 0, 1))
sketch5.addConstraint(Sketcher.Constraint("Perpendicular", 1, 2))
sketch5.addConstraint(Sketcher.Constraint("Perpendicular", 2, 3))
sketch5.addConstraint(Sketcher.Constraint("Distance", 1, Q("1.5 in")))
sketch5.addConstraint(Sketcher.Constraint("Distance", 0, Q("0.75 in")))
sketch5.addConstraint(Sketcher.Constraint("DistanceX", -1, 1, 0, 2, Q("45.912262 mm")))
sketch5.addConstraint(Sketcher.Constraint("DistanceY", 1, 2, 0, 2, Q("5.08772 mm")))
sketch5.addConstraint(Sketcher.Constraint("DistanceY", -1, 1, 0, 2, Q("192.327414 mm")))
pad5 = body7.newObject("PartDesign::Pad", "Pad004")
pad5.Profile = sketch5
pad5.Length = Q("57.75 in")
body8 = doc.addObject("PartDesign::Body", "Body007")

# Sketch on YZ plane
sketch6 = body8.newObject("Sketcher::SketchObject", "Sketch005")
sketch6.AttachmentSupport = (doc.getObject("YZ_Plane007"), [""])
sketch6.MapMode = "FlatFace"
sketch6.AttachmentOffset = App.Placement(App.Vector(0, 0, -28.875 * 25.4), App.Rotation())
add_polygon(sketch6, [(43, 399), (5, 403), (3, 384), (41, 380)])  # lines 0-3
sketch6.addConstraint(Sketcher.Constraint("Perpendicular", 0, 1))
sketch6.addConstraint(Sketcher.Constraint("Perpendicular", 1, 2))
sketch6.addConstraint(Sketcher.Constraint("Perpendicular", 2, 3))
sketch6.addConstraint(Sketcher.Constraint("Distance", 0, Q("1.5 in")))
sketch6.addConstraint(Sketcher.Constraint("Distance", 1, Q("0.75 in")))
sketch6.addConstraint(Sketcher.Constraint("DistanceX", 0, 2, 2, 2, Q("35.9202 mm")))
sketch6.addConstraint(Sketcher.Constraint("DistanceX", -1, 1, 0, 2, Q("4.90374 mm")))
sketch6.addConstraint(Sketcher.Constraint("DistanceY", -1, 1, 2, 2, Q("380.27715 mm")))
pad6 = body8.newObject("PartDesign::Pad", "Pad005")
pad6.Profile = sketch6
pad6.Length = Q("57.75 in")
body9 = doc.addObject("PartDesign::Body", "Body008")

# Sketch on YZ plane
sketch7 = body9.newObject("Sketcher::SketchObject", "Sketch006")
sketch7.AttachmentSupport = (doc.getObject("YZ_Plane008"), [""])
sketch7.MapMode = "FlatFace"
sketch7.AttachmentOffset = App.Placement(App.Vector(0, 0, -28.875 * 25.4), App.Rotation())
add_polygon(sketch7, [(109, 655), (74, 669), (67, 652), (102, 637)])  # lines 0-3
sketch7.addConstraint(Sketcher.Constraint("Perpendicular", 0, 1))
sketch7.addConstraint(Sketcher.Constraint("Perpendicular", 1, 2))
sketch7.addConstraint(Sketcher.Constraint("Perpendicular", 2, 3))
sketch7.addConstraint(Sketcher.Constraint("Distance", 0, Q("1.5 in")))
sketch7.addConstraint(Sketcher.Constraint("Distance", 1, Q("0.75 in")))
sketch7.addConstraint(Sketcher.Constraint("DistanceY", -1, 1, 0, 2, Q("669.2241 mm")))
sketch7.addConstraint(Sketcher.Constraint("DistanceY", -1, 1, 1, 2, Q("651.5759 mm")))
sketch7.addConstraint(Sketcher.Constraint("DistanceX", -1, 1, 1, 2, Q("66.99137 mm")))
pad7 = body9.newObject("PartDesign::Pad", "Pad006")
pad7.Profile = sketch7
pad7.Length = Q("57.75 in")
body10 = doc.addObject("PartDesign::Body", "Body009")

# Sketch on YZ plane
sketch8 = body10.newObject("Sketcher::SketchObject", "Sketch007")
sketch8.AttachmentSupport = (doc.getObject("YZ_Plane009"), [""])
sketch8.MapMode = "FlatFace"
sketch8.AttachmentOffset = App.Placement(App.Vector(0, 0, -28.875 * 25.4), App.Rotation())
add_polygon(sketch8, [(203, 882), (232, 857), (244, 872), (215, 896)])  # lines 0-3
sketch8.addConstraint(Sketcher.Constraint("Perpendicular", 0, 1))
sketch8.addConstraint(Sketcher.Constraint("Perpendicular", 1, 2))
sketch8.addConstraint(Sketcher.Constraint("Perpendicular", 2, 3))
sketch8.addConstraint(Sketcher.Constraint("Distance", 0, Q("1.5 in")))
sketch8.addConstraint(Sketcher.Constraint("Distance", 1, Q("0.75 in")))
sketch8.addConstraint(Sketcher.Constraint("DistanceY", -1, 1, 0, 2, Q("857.378801 mm")))
sketch8.addConstraint(Sketcher.Constraint("DistanceX", -1, 1, 2, 2, Q("214.898302 mm")))
sketch8.addConstraint(Sketcher.Constraint("DistanceX", -1, 1, 1, 2, Q("244.258812 mm")))
pad8 = body10.newObject("PartDesign::Pad", "Pad007")
pad8.Profile = sketch8
pad8.Length = Q("57.75 in")
body11 = doc.addObject("PartDesign::Body", "Body010")

# Sketch on YZ plane
sketch9 = body11.newObject("Sketcher::SketchObject", "Sketch008")
sketch9.AttachmentSupport = (doc.getObject("YZ_Plane010"), [""])
sketch9.MapMode = "FlatFace"
sketch9.AttachmentOffset = App.Placement(App.Vector(0, 0, -28.875 * 25.4), App.Rotation())
add_polygon(sketch9, [(418, 1074), (438, 1042), (454, 1052), (434, 1085)])  # lines 0-3
sketch9.addConstraint(Sketcher.Constraint("Perpendicular", 0, 1))
sketch9.addConstraint(Sketcher.Constraint("Perpendicular", 1, 2))
sketch9.addConstraint(Sketcher.Constraint("Perpendicular", 2, 3))
sketch9.addConstraint(Sketcher.Constraint("Distance", 0, Q("1.5 in")))
sketch9.addConstraint(Sketcher.Constraint("Distance", 1, Q("0.75 in")))
sketch9.addConstraint(Sketcher.Constraint("DistanceX", -1, 1, 1, 2, Q("454.124688 mm")))
sketch9.addConstraint(Sketcher.Constraint("DistanceX", -1, 1, 2, 2, Q("433.843668 mm")))
sketch9.addConstraint(Sketcher.Constraint("DistanceY", -1, 1, 0, 2, Q("1042.176215 mm")))
pad9 = body11.newObject("PartDesign::Pad", "Pad008")
pad9.Profile = sketch9
pad9.Length = Q("57.75 in")
body12 = doc.addObject("PartDesign::Body", "Body011")

# Sketch on YZ plane
sketch10 = body12.newObject("Sketcher::SketchObject", "Sketch009")
sketch10.AttachmentSupport = (doc.getObject("YZ_Plane011"), [""])
sketch10.MapMode = "FlatFace"
sketch10.AttachmentOffset = App.Placement(App.Vector(0, 0, -28.875 * 25.4), App.Rotation())
add_polygon(sketch10, [(614, 1129), (632, 1136), (620, 1172), (602, 1165)])  # lines 0-3
sketch10.addConstraint(Sketcher.Constraint("Perpendicular", 0, 1))
sketch10.addConstraint(Sketcher.Constraint("Perpendicular", 1, 2))
sketch10.addConstraint(Sketcher.Constraint("Perpendicular", 2, 3))
sketch10.addConstraint(Sketcher.Constraint("Distance", 1, Q("1.5 in")))
sketch10.addConstraint(Sketcher.Constraint("Distance", 0, Q("0.75 in")))
sketch10.addConstraint(Sketcher.Constraint("DistanceY", -1, 1, 0, 2, Q("1135.56327 mm")))
sketch10.addConstraint(Sketcher.Constraint("DistanceX", -1, 1, 1, 2, Q("619.525592 mm")))
sketch10.addConstraint(Sketcher.Constraint("DistanceY", -1, 1, 1, 2, Q("1171.537281 mm")))
pad10 = body12.newObject("PartDesign::Pad", "Pad009")
pad10.Profile = sketch10
pad10.Length = Q("57.75 in")
body13 = doc.addObject("PartDesign::Body", "Body012")

# Sketch on YZ plane
sketch11 = body13.newObject("Sketcher::SketchObject", "Sketch010")
sketch11.AttachmentSupport = (doc.getObject("YZ_Plane012"), [""])
sketch11.MapMode = "FlatFace"
sketch11.AttachmentOffset = App.Placement(App.Vector(0, 0, -28.875 * 25.4), App.Rotation())
add_polygon(sketch11, [(891.341479, 1219.000689), (891.740101, 1180.902774), (910.789059, 1181.102085), (910.390436, 1219.2)])  # lines 0-3
sketch11.addConstraint(Sketcher.Constraint("DistanceY", -1, 1, 2, 2, Q("48 in")))
sketch11.addConstraint(Sketcher.Constraint("Distance", 0, Q("1.5 in")))
sketch11.addConstraint(Sketcher.Constraint("Distance", 2, Q("1.5 in")))
sketch11.addConstraint(Sketcher.Constraint("Distance", 1, Q("0.75 in")))
sketch11.addConstraint(Sketcher.Constraint("Distance", 3, Q("0.75 in")))
sketch11.addConstraint(Sketcher.Constraint("DistanceX", -1, 1, 0, 2, Q("891.740101 mm")))
sketch11.addConstraint(Sketcher.Constraint("DistanceX", -1, 1, 1, 2, Q("910.789059 mm")))
sketch11.addConstraint(Sketcher.Constraint("DistanceX", -1, 1, 3, 2, Q("891.341479 mm")))
pad11 = body13.newObject("PartDesign::Pad", "Pad010")
pad11.Profile = sketch11
pad11.Length = Q("57.75 in")
body14 = doc.addObject("PartDesign::Body", "Body013")

# Sketch on YZ plane
sketch12 = body14.newObject("Sketcher::SketchObject", "Sketch011")
sketch12.AttachmentSupport = (doc.getObject("YZ_Plane013"), [""])
sketch12.MapMode = "FlatFace"
sketch12.AttachmentOffset = App.Placement(App.Vector(0, 0, -28.875 * 25.4), App.Rotation())
add_polygon(sketch12, [(1168, 1219), (1168, 1181), (1187, 1181), (1187, 1219)])  # lines 0-3
sketch12.addConstraint(Sketcher.Constraint("Vertical", 0))
sketch12.addConstraint(Sketcher.Constraint("Horizontal", 1))
sketch12.addConstraint(Sketcher.Constraint("Vertical", 2))
sketch12.addConstraint(Sketcher.Constraint("Horizontal", 3))
sketch12.addConstraint(Sketcher.Constraint("DistanceY", 0, 2, 0, 1, Q("1.5 in")))
sketch12.addConstraint(Sketcher.Constraint("DistanceX", -1, 1, 0, 2, Q("46 in")))
sketch12.addConstraint(Sketcher.Constraint("DistanceY", -1, 1, 2, 2, Q("48 in")))
sketch12.addConstraint(Sketcher.Constraint("DistanceX", 1, 1, 1, 2, Q("0.75 in")))
pad12 = body14.newObject("PartDesign::Pad", "Pad011")
pad12.Profile = sketch12
pad12.Length = Q("57.75 in")
body15 = doc.addObject("PartDesign::Body", "Body014")

# Sketch on YZ plane
sketch13 = body15.newObject("Sketcher::SketchObject", "Sketch012")
sketch13.AttachmentSupport = (doc.getObject("YZ_Plane014"), [""])
sketch13.MapMode = "FlatFace"
sketch13.AttachmentOffset = App.Placement(App.Vector(0, 0, -28.875 * 25.4), App.Rotation())
add_polygon(sketch13, [(1264, 1216), (1226, 1218), (1223, 1180), (1261, 1178)])  # lines 0-3
sketch13.addConstraint(Sketcher.Constraint("Perpendicular", 0, 1))
sketch13.addConstraint(Sketcher.Constraint("Perpendicular", 1, 2))
sketch13.addConstraint(Sketcher.Constraint("Perpendicular", 2, 3))
sketch13.addConstraint(Sketcher.Constraint("Equal", 0, 1))
sketch13.addConstraint(Sketcher.Constraint("Distance", 0, Q("1.5 in")))
sketch13.addConstraint(Sketcher.Constraint("DistanceY", -1, 1, 3, 2, Q("1215.771799 mm")))
sketch13.addConstraint(Sketcher.Constraint("DistanceX", -1, 1, 2, 2, Q("1261.33164 mm")))
sketch13.addConstraint(Sketcher.Constraint("DistanceY", 2, 2, 0, 2, Q("40.315569 mm")))
pad13 = body15.newObject("PartDesign::Pad", "Pad012")
pad13.Profile = sketch13
pad13.Length = Q("57.75 in")
body16 = doc.addObject("PartDesign::Body", "Body015")

# Sketch on YZ plane
sketch14 = body16.newObject("Sketcher::SketchObject", "Sketch013")
sketch14.AttachmentSupport = (doc.getObject("YZ_Plane015"), [""])
sketch14.MapMode = "FlatFace"
sketch14.AttachmentOffset = App.Placement(App.Vector(0, 0, -28.875 * 25.4), App.Rotation())
add_polygon(sketch14, [(1416, 1195), (1378, 1202), (1371, 1164), (1409, 1158)])  # lines 0-3
sketch14.addConstraint(Sketcher.Constraint("Perpendicular", 0, 1))
sketch14.addConstraint(Sketcher.Constraint("Perpendicular", 1, 2))
sketch14.addConstraint(Sketcher.Constraint("Perpendicular", 2, 3))
sketch14.addConstraint(Sketcher.Constraint("Equal", 0, 1))
sketch14.addConstraint(Sketcher.Constraint("Distance", 0, Q("1.5 in")))
sketch14.addConstraint(Sketcher.Constraint("DistanceY", -1, 1, 0, 2, Q("1201.900298 mm")))
sketch14.addConstraint(Sketcher.Constraint("DistanceX", -1, 1, 0, 2, Q("1378.260629 mm")))
sketch14.addConstraint(Sketcher.Constraint("DistanceX", -1, 1, 1, 2, Q("1371.408339 mm")))
pad14 = body16.newObject("PartDesign::Pad", "Pad013")
pad14.Profile = sketch14
pad14.Length = Q("57.75 in")
body17 = doc.addObject("PartDesign::Body", "Body016")

# Sketch on YZ plane
sketch15 = body17.newObject("Sketcher::SketchObject", "Sketch014")
sketch15.AttachmentSupport = (doc.getObject("YZ_Plane016"), [""])
sketch15.MapMode = "FlatFace"
sketch15.AttachmentOffset = App.Placement(App.Vector(0, 0, -28.875 * 25.4), App.Rotation())
add_polygon(sketch15, [(1634, 1131), (1617, 1138), (1603, 1102), (1621, 1095)])  # lines 0-3
sketch15.addConstraint(Sketcher.Constraint("Perpendicular", 0, 1))
sketch15.addConstraint(Sketcher.Constraint("Perpendicular", 1, 2))
sketch15.addConstraint(Sketcher.Constraint("Perpendicular", 2, 3))
sketch15.addConstraint(Sketcher.Constraint("Distance", 1, Q("1.5 in")))
sketch15.addConstraint(Sketcher.Constraint("Distance", 0, Q("0.75 in")))
sketch15.addConstraint(Sketcher.Constraint("DistanceX", -1, 1, 0, 2, Q("1616.712528 mm")))
sketch15.addConstraint(Sketcher.Constraint("DistanceX", -1, 1, 1, 2, Q("1603.007949 mm")))
sketch15.addConstraint(Sketcher.Constraint("DistanceY", -1, 1, 1, 2, Q("1102.00167 mm")))
pad15 = body17.newObject("PartDesign::Pad", "Pad014")
pad15.Profile = sketch15
pad15.Length = Q("57.75 in")
body18 = doc.addObject("PartDesign::Body", "Body017")

# Sketch on YZ plane
sketch16 = body18.newObject("Sketcher::SketchObject", "Sketch015")
sketch16.AttachmentSupport = (doc.getObject("YZ_Plane017"), [""])
sketch16.MapMode = "FlatFace"
sketch16.AttachmentOffset = App.Placement(App.Vector(0, 0, -28.875 * 25.4), App.Rotation())
add_polygon(sketch16, [(1756, 1032), (1773, 1023), (1791, 1057), (1774, 1066), (1757, 1075), (1739, 1041)])  # lines 0-5
sketch16.addConstraint(Sketcher.Constraint("Perpendicular", 0, 1))
sketch16.addConstraint(Sketcher.Constraint("Perpendicular", 1, 2))
sketch16.addConstraint(Sketcher.Constraint("Parallel", 2, 3))
sketch16.addConstraint(Sketcher.Constraint("Perpendicular", 3, 4))
sketch16.addConstraint(Sketcher.Constraint("Perpendicular", 4, 5))
sketch16.addConstraint(Sketcher.Constraint("Equal", 0, 2))
sketch16.addConstraint(Sketcher.Constraint("Equal", 2, 3))
sketch16.addConstraint(Sketcher.Constraint("Distance", 1, Q("1.5 in")))
sketch16.addConstraint(Sketcher.Constraint("DistanceX", -1, 1, 1, 2, Q("70.5 in")))
sketch16.addConstraint(Sketcher.Constraint("Distance", 0, Q("0.75 in")))
sketch16.addConstraint(Sketcher.Constraint("DistanceY", -1, 1, 0, 2, Q("1023.327978 mm")))
sketch16.addConstraint(Sketcher.Constraint("DistanceX", -1, 1, 2, 2, Q("1773.815111 mm")))
pad16 = body18.newObject("PartDesign::Pad", "Pad015")
pad16.Profile = sketch16
pad16.Length = Q("57.75 in")

doc.recompute()
